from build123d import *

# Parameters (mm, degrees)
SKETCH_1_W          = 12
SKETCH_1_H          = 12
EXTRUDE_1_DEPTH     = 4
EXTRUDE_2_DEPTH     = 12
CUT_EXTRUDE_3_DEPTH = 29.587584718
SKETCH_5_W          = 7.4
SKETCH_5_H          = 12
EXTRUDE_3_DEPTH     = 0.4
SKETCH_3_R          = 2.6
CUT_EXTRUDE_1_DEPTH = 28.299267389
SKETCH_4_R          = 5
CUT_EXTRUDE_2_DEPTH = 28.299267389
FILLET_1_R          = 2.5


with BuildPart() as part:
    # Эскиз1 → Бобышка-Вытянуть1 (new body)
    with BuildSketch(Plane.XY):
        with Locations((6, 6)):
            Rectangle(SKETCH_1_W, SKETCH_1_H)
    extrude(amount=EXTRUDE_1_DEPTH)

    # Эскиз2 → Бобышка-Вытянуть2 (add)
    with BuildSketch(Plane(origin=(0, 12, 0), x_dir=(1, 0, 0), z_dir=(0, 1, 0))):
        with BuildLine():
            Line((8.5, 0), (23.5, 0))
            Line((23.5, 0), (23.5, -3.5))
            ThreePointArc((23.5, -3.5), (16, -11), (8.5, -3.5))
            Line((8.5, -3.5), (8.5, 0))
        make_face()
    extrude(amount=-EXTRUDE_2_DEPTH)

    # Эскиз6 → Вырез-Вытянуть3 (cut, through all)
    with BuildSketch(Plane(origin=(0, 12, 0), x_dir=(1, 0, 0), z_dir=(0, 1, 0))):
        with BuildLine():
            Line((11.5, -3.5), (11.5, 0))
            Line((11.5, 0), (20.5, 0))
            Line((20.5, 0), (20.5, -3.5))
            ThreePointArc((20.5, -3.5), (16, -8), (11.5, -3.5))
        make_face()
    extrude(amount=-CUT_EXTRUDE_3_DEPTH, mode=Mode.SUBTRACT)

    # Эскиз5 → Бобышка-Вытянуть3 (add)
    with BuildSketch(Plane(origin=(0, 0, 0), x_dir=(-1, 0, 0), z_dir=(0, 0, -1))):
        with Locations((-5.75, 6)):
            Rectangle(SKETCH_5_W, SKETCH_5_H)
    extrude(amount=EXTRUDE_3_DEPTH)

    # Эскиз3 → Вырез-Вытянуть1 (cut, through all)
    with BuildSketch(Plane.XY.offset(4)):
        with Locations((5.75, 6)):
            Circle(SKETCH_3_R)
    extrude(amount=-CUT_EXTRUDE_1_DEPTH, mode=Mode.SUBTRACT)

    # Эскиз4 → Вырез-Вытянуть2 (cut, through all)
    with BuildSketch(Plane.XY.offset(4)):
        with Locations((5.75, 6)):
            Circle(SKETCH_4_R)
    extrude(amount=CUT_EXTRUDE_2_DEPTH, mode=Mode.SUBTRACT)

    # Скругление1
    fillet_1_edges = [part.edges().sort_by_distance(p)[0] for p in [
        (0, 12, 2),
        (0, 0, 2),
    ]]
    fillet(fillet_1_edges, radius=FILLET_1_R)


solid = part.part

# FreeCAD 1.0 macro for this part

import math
import FreeCAD as App
import Part
import Sketcher

V = App.Vector


def edges_at(feature, points):
    """Names of the edges that pass closest to the given points."""
    edges = feature.Shape.Edges
    near = lambda p: min(range(len(edges)), key=lambda i: edges[i].distToShape(Part.Vertex(*p))[0])
    return sorted({f"Edge{near(p) + 1}" for p in points})


def add_polygon(sketch, points):
    """Adds a closed chain of lines whose ends are joined by coincident constraints."""
    first, n = sketch.GeometryCount, len(points)
    for a, b in zip(points, points[1:] + points[:1]):
        sketch.addGeometry(Part.LineSegment(App.Vector(*a, 0), App.Vector(*b, 0)), False)
    for i in range(n):
        sketch.addConstraint(Sketcher.Constraint("Coincident", first + i, 2, first + (i + 1) % n, 1))

doc = App.newDocument("Part")
body = doc.addObject("PartDesign::Body", "Body")

# Sketch on XY plane
sketch1 = body.newObject("Sketcher::SketchObject", "Sketch")
sketch1.AttachmentSupport = (doc.getObject("XY_Plane"), [""])
sketch1.MapMode = "FlatFace"
add_polygon(sketch1, [(0, 12), (0, 0), (12, 0), (12, 12)])  # lines 0-3
sketch1.addConstraint([
    Sketcher.Constraint("Vertical", 0),
    Sketcher.Constraint("Horizontal", 1),
    Sketcher.Constraint("Vertical", 2),
    Sketcher.Constraint("Horizontal", 3),
    Sketcher.Constraint("Coincident", 0, 2, -1, 1),
    Sketcher.Constraint("Equal", 3, 0),
    Sketcher.Constraint("DistanceX", 1, 1, 1, 2, 12.0),
])
pad1 = body.newObject("PartDesign::Pad", "Pad")
pad1.Profile = sketch1
pad1.Length = 4

# Sketch on XZ plane
sketch2 = body.newObject("Sketcher::SketchObject", "Sketch001")
sketch2.AttachmentSupport = (doc.getObject("XZ_Plane"), [""])
sketch2.MapMode = "FlatFace"
sketch2.AttachmentOffset = App.Placement(V(0, 0, -12), App.Rotation())
sketch2.addGeometry([
    Part.LineSegment(V(23.5, 0, 0), V(8.5, 0, 0)),
    Part.LineSegment(V(8.5, 0, 0), V(8.5, 3.5, 0)),
    Part.ArcOfCircle(Part.Circle(V(16, 3.5, 0), V(0, 0, 1), 7.5), math.radians(0), math.radians(180)),
    Part.LineSegment(V(23.5, 3.5, 0), V(23.5, 0, 0)),
], False)
sketch2.addConstraint([
    Sketcher.Constraint("Coincident", 0, 2, 1, 1),
    Sketcher.Constraint("Tangent", 1, 2, 2, 2),
    Sketcher.Constraint("Tangent", 2, 1, 3, 1),
    Sketcher.Constraint("Coincident", 3, 2, 0, 1),
    Sketcher.Constraint("Horizontal", 0),
    Sketcher.Constraint("Vertical", 1),
    Sketcher.Constraint("Vertical", 3),
    Sketcher.Constraint("PointOnObject", 0, 2, -1),
    Sketcher.Constraint("Radius", 2, 7.5),
    Sketcher.Constraint("DistanceY", 1, 1, 1, 2, 3.5),
    Sketcher.Constraint("DistanceX", -1, 1, 2, 3, 16.0),
])
pad2 = body.newObject("PartDesign::Pad", "Pad001")
pad2.Profile = sketch2
pad2.Length = 12

# Sketch on XZ plane
sketch3 = body.newObject("Sketcher::SketchObject", "Sketch002")
sketch3.AttachmentSupport = (doc.getObject("XZ_Plane"), [""])
sketch3.MapMode = "FlatFace"
sketch3.AttachmentOffset = App.Placement(V(0, 0, -12), App.Rotation())
sketch3.addGeometry([
    Part.LineSegment(V(11.5, 0, 0), V(11.5, 3.5, 0)),
    Part.ArcOfCircle(Part.Circle(V(16, 3.5, 0), V(0, 0, 1), 4.5), math.radians(0), math.radians(180)),
    Part.LineSegment(V(20.5, 3.5, 0), V(20.5, 0, 0)),
    Part.LineSegment(V(20.5, 0, 0), V(11.5, 0, 0)),
], False)
sketch3.addConstraint([
    Sketcher.Constraint("Tangent", 0, 2, 1, 2),
    Sketcher.Constraint("Tangent", 1, 1, 2, 1),
    Sketcher.Constraint("Coincident", 2, 2, 3, 1),
    Sketcher.Constraint("Coincident", 3, 2, 0, 1),
    Sketcher.Constraint("Vertical", 0),
    Sketcher.Constraint("Vertical", 2),
    Sketcher.Constraint("Horizontal", 3),
    Sketcher.Constraint("PointOnObject", 2, 2, -1),
    Sketcher.Constraint("Radius", 1, 4.5),
    Sketcher.Constraint("DistanceY", 0, 1, 0, 2, 3.5),
    Sketcher.Constraint("DistanceX", -1, 1, 1, 3, 16.0),
])
pocket1 = body.newObject("PartDesign::Pocket", "Pocket")
pocket1.Profile = sketch3
pocket1.Type = "ThroughAll"
pocket1.Reversed = True

# Sketch on XY plane
sketch4 = body.newObject("Sketcher::SketchObject", "Sketch003")
sketch4.AttachmentSupport = (doc.getObject("XY_Plane"), [""])
sketch4.MapMode = "FlatFace"
add_polygon(sketch4, [(9, 12), (9, 0), (2, 0), (2, 12)])  # lines 0-3
sketch4.addConstraint([
    Sketcher.Constraint("Vertical", 0),
    Sketcher.Constraint("Horizontal", 1),
    Sketcher.Constraint("Vertical", 2),
    Sketcher.Constraint("Horizontal", 3),
    Sketcher.Constraint("PointOnObject", 0, 2, -1),
    Sketcher.Constraint("DistanceY", 0, 2, 0, 1, 12.0),
    Sketcher.Constraint("DistanceX", 1, 2, 1, 1, 7.4),
    Sketcher.Constraint("DistanceX", -1, 1, 0, 2, 9.45),
])
pad3 = body.newObject("PartDesign::Pad", "Pad002")
pad3.Profile = sketch4
pad3.Length = 0.4
pad3.Reversed = True

# Sketch on XY plane
sketch5 = body.newObject("Sketcher::SketchObject", "Sketch004")
sketch5.AttachmentSupport = (doc.getObject("XY_Plane"), [""])
sketch5.MapMode = "FlatFace"
sketch5.AttachmentOffset = App.Placement(V(0, 0, 4), App.Rotation())
sketch5.addGeometry(Part.Circle(V(5.8, 6, 0), V(0, 0, 1), 2.6), False)
sketch5.addConstraint([
    Sketcher.Constraint("Diameter", 0, 5.2),
    Sketcher.Constraint("DistanceY", -1, 1, 0, 3, 6.0),
    Sketcher.Constraint("DistanceX", -1, 1, 0, 3, 5.75),
])
pocket2 = body.newObject("PartDesign::Pocket", "Pocket001")
pocket2.Profile = sketch5
pocket2.Type = "ThroughAll"

# Sketch on XY plane
sketch6 = body.newObject("Sketcher::SketchObject", "Sketch005")
sketch6.AttachmentSupport = (doc.getObject("XY_Plane"), [""])
sketch6.MapMode = "FlatFace"
sketch6.AttachmentOffset = App.Placement(V(0, 0, 4), App.Rotation())
sketch6.addGeometry(Part.Circle(V(6, 6, 0), V(0, 0, 1), 5), False)
sketch6.addConstraint([
    Sketcher.Constraint("Diameter", 0, 10.0),
    Sketcher.Constraint("DistanceY", -1, 1, 0, 3, 6.0),
    Sketcher.Constraint("DistanceX", -1, 1, 0, 3, 5.75),
])
pocket3 = body.newObject("PartDesign::Pocket", "Pocket002")
pocket3.Profile = sketch6
pocket3.Type = "ThroughAll"
pocket3.Reversed = True
doc.recompute()

fillet = body.newObject("PartDesign::Fillet", "Fillet")
fillet.Base = (pocket3, edges_at(pocket3, [(0, 12, 2), (0, 0, 2)]))
fillet.Radius = 2.5

doc.recompute()
